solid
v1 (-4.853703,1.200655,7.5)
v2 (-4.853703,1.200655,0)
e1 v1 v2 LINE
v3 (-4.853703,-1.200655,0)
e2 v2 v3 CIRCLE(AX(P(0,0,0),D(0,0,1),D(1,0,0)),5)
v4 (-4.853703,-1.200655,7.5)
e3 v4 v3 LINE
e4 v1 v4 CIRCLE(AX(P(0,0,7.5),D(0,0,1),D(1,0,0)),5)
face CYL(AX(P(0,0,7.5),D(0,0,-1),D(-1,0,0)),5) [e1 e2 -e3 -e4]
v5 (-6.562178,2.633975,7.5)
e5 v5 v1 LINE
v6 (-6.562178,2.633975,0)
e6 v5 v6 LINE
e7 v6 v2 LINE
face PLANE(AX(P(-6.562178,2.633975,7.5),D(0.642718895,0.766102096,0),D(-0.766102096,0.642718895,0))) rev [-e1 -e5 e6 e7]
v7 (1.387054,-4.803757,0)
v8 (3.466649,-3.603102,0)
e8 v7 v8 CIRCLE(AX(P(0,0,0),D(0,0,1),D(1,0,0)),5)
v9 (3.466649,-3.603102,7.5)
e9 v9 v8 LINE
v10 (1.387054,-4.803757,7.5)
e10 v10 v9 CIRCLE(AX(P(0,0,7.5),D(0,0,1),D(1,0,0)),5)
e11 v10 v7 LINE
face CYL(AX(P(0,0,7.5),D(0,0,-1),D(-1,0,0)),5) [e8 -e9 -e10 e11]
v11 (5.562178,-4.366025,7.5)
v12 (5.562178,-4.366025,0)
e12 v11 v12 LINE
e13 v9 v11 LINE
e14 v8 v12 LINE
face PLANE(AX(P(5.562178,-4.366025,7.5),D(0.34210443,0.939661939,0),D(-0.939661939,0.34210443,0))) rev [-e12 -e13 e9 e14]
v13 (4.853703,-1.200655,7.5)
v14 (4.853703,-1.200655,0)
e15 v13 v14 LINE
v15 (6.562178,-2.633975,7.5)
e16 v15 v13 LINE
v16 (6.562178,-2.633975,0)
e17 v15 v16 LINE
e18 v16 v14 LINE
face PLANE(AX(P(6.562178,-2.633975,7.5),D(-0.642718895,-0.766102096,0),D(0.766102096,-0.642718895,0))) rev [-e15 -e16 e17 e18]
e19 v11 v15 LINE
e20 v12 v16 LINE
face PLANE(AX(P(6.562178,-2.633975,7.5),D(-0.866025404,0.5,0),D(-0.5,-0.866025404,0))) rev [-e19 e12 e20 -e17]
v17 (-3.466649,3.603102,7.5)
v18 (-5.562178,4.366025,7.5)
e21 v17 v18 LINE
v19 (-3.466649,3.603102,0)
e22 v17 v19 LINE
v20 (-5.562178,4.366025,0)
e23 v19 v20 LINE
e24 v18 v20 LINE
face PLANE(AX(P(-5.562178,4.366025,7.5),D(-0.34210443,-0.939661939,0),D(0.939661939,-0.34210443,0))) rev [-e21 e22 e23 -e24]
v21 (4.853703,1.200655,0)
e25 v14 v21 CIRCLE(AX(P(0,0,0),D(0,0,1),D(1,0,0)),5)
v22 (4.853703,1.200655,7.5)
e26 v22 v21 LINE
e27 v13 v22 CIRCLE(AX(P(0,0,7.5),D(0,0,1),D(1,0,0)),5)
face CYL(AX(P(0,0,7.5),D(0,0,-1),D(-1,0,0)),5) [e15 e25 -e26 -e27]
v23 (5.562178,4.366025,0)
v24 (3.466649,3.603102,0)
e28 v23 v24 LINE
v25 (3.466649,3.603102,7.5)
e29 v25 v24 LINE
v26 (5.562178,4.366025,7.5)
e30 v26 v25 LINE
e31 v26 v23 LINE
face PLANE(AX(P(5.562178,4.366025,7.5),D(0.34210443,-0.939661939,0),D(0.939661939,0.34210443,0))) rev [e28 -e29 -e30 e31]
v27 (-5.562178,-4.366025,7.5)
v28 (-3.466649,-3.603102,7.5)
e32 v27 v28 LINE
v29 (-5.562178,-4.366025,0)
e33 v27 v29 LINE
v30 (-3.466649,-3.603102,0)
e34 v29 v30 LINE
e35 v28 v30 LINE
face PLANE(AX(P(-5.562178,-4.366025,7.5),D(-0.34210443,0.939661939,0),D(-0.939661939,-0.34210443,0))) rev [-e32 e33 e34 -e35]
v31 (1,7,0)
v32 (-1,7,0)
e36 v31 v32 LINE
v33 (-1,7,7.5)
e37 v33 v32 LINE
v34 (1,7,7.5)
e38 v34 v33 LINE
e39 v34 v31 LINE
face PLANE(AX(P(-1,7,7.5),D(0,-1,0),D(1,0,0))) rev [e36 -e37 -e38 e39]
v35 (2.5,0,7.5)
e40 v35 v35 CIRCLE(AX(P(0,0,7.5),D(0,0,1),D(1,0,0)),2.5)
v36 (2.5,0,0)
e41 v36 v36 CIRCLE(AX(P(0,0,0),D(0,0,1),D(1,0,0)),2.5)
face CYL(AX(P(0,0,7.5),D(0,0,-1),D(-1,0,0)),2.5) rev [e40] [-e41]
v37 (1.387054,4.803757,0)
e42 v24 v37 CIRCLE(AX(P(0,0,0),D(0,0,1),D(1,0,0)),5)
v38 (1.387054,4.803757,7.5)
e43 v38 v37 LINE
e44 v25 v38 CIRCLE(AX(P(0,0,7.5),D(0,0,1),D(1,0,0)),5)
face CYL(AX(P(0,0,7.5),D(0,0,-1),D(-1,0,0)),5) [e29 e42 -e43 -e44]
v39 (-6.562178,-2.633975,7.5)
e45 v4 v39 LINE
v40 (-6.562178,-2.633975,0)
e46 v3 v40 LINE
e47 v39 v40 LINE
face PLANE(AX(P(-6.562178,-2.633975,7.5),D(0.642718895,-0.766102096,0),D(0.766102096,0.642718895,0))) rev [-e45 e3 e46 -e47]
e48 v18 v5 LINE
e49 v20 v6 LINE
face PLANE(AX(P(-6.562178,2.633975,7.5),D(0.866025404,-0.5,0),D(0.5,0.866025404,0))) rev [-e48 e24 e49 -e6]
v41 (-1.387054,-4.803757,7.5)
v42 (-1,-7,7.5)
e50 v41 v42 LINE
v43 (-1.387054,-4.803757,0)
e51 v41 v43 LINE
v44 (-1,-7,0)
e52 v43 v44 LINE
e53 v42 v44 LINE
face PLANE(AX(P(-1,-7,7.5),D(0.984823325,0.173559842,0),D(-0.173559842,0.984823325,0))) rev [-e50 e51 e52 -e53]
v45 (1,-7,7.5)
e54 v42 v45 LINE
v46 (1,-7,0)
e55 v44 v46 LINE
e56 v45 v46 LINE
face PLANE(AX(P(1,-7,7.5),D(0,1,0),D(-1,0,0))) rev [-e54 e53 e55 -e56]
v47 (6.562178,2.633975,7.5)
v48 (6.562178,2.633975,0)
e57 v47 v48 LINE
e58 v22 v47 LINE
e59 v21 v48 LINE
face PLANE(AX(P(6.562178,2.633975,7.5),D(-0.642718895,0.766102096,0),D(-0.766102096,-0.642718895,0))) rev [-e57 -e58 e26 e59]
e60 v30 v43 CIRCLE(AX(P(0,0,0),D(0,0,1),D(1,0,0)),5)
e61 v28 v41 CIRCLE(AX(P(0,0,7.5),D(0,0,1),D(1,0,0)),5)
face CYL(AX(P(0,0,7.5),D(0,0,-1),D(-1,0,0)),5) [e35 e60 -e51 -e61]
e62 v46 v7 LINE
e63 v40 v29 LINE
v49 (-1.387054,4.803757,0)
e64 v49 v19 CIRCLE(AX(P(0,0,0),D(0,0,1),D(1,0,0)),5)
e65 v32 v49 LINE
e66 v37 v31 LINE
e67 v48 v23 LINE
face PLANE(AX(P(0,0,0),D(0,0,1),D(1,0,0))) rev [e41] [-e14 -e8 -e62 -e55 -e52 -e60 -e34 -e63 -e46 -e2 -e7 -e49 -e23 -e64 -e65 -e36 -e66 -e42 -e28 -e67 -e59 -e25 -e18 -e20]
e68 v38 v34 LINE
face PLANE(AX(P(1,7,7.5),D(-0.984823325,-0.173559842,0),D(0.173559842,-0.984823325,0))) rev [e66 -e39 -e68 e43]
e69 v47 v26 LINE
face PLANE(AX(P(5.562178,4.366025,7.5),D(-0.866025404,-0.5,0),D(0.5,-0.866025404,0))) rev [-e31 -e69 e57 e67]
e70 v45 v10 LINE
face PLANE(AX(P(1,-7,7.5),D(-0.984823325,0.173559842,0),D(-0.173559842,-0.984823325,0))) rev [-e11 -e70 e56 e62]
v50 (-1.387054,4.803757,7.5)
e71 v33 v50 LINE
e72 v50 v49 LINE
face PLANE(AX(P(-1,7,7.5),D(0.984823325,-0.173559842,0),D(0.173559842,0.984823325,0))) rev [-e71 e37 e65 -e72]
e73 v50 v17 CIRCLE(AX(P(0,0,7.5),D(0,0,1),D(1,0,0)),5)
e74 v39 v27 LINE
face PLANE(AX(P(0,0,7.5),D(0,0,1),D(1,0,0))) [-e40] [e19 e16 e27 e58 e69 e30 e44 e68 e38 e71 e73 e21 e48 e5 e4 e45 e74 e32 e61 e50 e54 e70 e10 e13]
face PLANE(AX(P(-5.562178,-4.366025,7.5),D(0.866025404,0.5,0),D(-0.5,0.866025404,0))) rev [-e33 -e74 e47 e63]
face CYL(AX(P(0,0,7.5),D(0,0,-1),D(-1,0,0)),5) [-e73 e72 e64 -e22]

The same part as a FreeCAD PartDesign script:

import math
import FreeCAD as App
import Part
import Sketcher
from FreeCAD import Vector
Q = App.Units.Quantity

doc = App.newDocument("Part")
body = doc.addObject("PartDesign::Body", "Body")

# Sketch on XY plane
sketch1 = body.newObject("Sketcher::SketchObject", "Sketch")
sketch1.AttachmentSupport = (doc.getObject("XY_Plane"), [""])
sketch1.MapMode = "FlatFace"
sketch1.addGeometry([
    Part.LineSegment(Vector(1, 7, 0), Vector(-1, 7, 0)),  # 0
    Part.LineSegment(Vector(-1, 7, 0), Vector(-1.4, 4.8, 0)),  # 1
    Part.ArcOfCircle(Part.Circle(Vector(0, 0, 0), Vector(0, 0, 1), 5), math.radians(106), math.radians(134)),  # 2
    Part.LineSegment(Vector(-3.5, 3.6, 0), Vector(-5.6, 4.4, 0)),  # 3
    Part.LineSegment(Vector(-5.6, 4.4, 0), Vector(-6.6, 2.6, 0)),  # 4
    Part.LineSegment(Vector(-6.6, 2.6, 0), Vector(-4.9, 1.2, 0)),  # 5
    Part.ArcOfCircle(Part.Circle(Vector(0, 0, 0), Vector(0, 0, 1), 5), math.radians(166), math.radians(194)),  # 6
    Part.LineSegment(Vector(-4.9, -1.2, 0), Vector(-6.6, -2.6, 0)),  # 7
    Part.LineSegment(Vector(-6.6, -2.6, 0), Vector(-5.6, -4.4, 0)),  # 8
    Part.LineSegment(Vector(-5.6, -4.4, 0), Vector(-3.5, -3.6, 0)),  # 9
    Part.ArcOfCircle(Part.Circle(Vector(0, 0, 0), Vector(0, 0, 1), 5), math.radians(-134), math.radians(-106)),  # 10
    Part.LineSegment(Vector(-1.4, -4.8, 0), Vector(-1, -7, 0)),  # 11
    Part.LineSegment(Vector(-1, -7, 0), Vector(1, -7, 0)),  # 12
    Part.LineSegment(Vector(1, -7, 0), Vector(1.4, -4.8, 0)),  # 13
    Part.ArcOfCircle(Part.Circle(Vector(0, 0, 0), Vector(0, 0, 1), 5), math.radians(-74), math.radians(-46)),  # 14
    Part.LineSegment(Vector(3.5, -3.6, 0), Vector(5.6, -4.4, 0)),  # 15
    Part.LineSegment(Vector(5.6, -4.4, 0), Vector(6.6, -2.6, 0)),  # 16
    Part.LineSegment(Vector(6.6, -2.6, 0), Vector(4.9, -1.2, 0)),  # 17
    Part.ArcOfCircle(Part.Circle(Vector(0, 0, 0), Vector(0, 0, 1), 5), math.radians(-14), math.radians(14)),  # 18
    Part.LineSegment(Vector(4.9, 1.2, 0), Vector(6.6, 2.6, 0)),  # 19
    Part.LineSegment(Vector(6.6, 2.6, 0), Vector(5.6, 4.4, 0)),  # 20
    Part.LineSegment(Vector(5.6, 4.4, 0), Vector(3.5, 3.6, 0)),  # 21
    Part.ArcOfCircle(Part.Circle(Vector(0, 0, 0), Vector(0, 0, 1), 5), math.radians(46), math.radians(74)),  # 22
    Part.LineSegment(Vector(1.4, 4.8, 0), Vector(1, 7, 0)),  # 23
    Part.Circle(Vector(0, 0, 0), Vector(0, 0, 1), 2.5),  # 24
], False)
sketch1.addConstraint([
    Sketcher.Constraint("Coincident", 0, 2, 1, 1),
    Sketcher.Constraint("Coincident", 1, 2, 2, 1),
    Sketcher.Constraint("Coincident", 2, 2, 3, 1),
    Sketcher.Constraint("Coincident", 3, 2, 4, 1),
    Sketcher.Constraint("Coincident", 4, 2, 5, 1),
    Sketcher.Constraint("Coincident", 5, 2, 6, 1),
    Sketcher.Constraint("Coincident", 6, 2, 7, 1),
    Sketcher.Constraint("Coincident", 7, 2, 8, 1),
    Sketcher.Constraint("Coincident", 8, 2, 9, 1),
    Sketcher.Constraint("Coincident", 9, 2, 10, 1),
    Sketcher.Constraint("Coincident", 10, 2, 11, 1),
    Sketcher.Constraint("Coincident", 11, 2, 12, 1),
    Sketcher.Constraint("Coincident", 12, 2, 13, 1),
    Sketcher.Constraint("Coincident", 13, 2, 14, 1),
    Sketcher.Constraint("Coincident", 14, 2, 15, 1),
    Sketcher.Constraint("Coincident", 15, 2, 16, 1),
    Sketcher.Constraint("Coincident", 16, 2, 17, 1),
    Sketcher.Constraint("Coincident", 17, 2, 18, 1),
    Sketcher.Constraint("Coincident", 18, 2, 19, 1),
    Sketcher.Constraint("Coincident", 19, 2, 20, 1),
    Sketcher.Constraint("Coincident", 20, 2, 21, 1),
    Sketcher.Constraint("Coincident", 21, 2, 22, 1),
    Sketcher.Constraint("Coincident", 22, 2, 23, 1),
    Sketcher.Constraint("Coincident", 23, 2, 0, 1),
    Sketcher.Constraint("Horizontal", 0),
    Sketcher.Constraint("Horizontal", 12),
    Sketcher.Constraint("Coincident", 2, 3, -1, 1),
    Sketcher.Constraint("Coincident", 6, 3, -1, 1),
    Sketcher.Constraint("Coincident", 10, 3, -1, 1),
    Sketcher.Constraint("Coincident", 14, 3, -1, 1),
    Sketcher.Constraint("Coincident", 18, 3, -1, 1),
    Sketcher.Constraint("Coincident", 22, 3, -1, 1),
    Sketcher.Constraint("Coincident", 24, 3, -1, 1),
    Sketcher.Constraint("Equal", 2, 6),
    Sketcher.Constraint("Equal", 6, 10),
    Sketcher.Constraint("Equal", 10, 14),
    Sketcher.Constraint("Equal", 14, 18),
    Sketcher.Constraint("Equal", 18, 22),
    Sketcher.Constraint("Symmetric", 0, 2, 12, 2, -1, 1),
    Sketcher.Constraint("Symmetric", 3, 2, 15, 2, -1, 1),
    Sketcher.Constraint("Symmetric", 4, 2, 16, 2, -1, 1),
    Sketcher.Constraint("Symmetric", 7, 2, 19, 2, -1, 1),
    Sketcher.Constraint("Symmetric", 8, 2, 20, 2, -1, 1),
    Sketcher.Constraint("Symmetric", 8, 2, 15, 2, -2),
    Sketcher.Constraint("Symmetric", 7, 2, 16, 2, -2),
    Sketcher.Constraint("Parallel", 1, 13),
    Sketcher.Constraint("Parallel", 3, 15),
    Sketcher.Constraint("Parallel", 5, 17),
    Sketcher.Constraint("Parallel", 7, 19),
    Sketcher.Constraint("Parallel", 9, 21),
    Sketcher.Constraint("Parallel", 11, 23),
    Sketcher.Constraint("Horizontal", 10, 2, 13, 2),
    Sketcher.Constraint("Horizontal", 9, 2, 14, 2),
    Sketcher.Constraint("Horizontal", 6, 2, 17, 2),
    Sketcher.Constraint("Horizontal", 1, 2, 22, 2),
    Sketcher.Constraint("Vertical", 0, 2, 11, 2),
    Sketcher.Constraint("Equal", 1, 3),
    Sketcher.Constraint("Equal", 3, 5),
    Sketcher.Constraint("Diameter", 24, Q("5 mm")),
    Sketcher.Constraint("Radius", 2, Q("5 mm")),
    Sketcher.Constraint("DistanceX", 0, 2, 0, 1, Q("2 mm")),
    Sketcher.Constraint("Angle", 4, Q("-120 deg")),
    Sketcher.Constraint("Distance", 4, Q("2 mm")),
    Sketcher.Constraint("DistanceY", -1, 1, 0, 2, Q("7 mm")),
    Sketcher.Constraint("Distance", 1, Q("2.230088 mm")),
    Sketcher.Constraint("DistanceX", 2, 2, -1, 1, Q("3.466649 mm")),
    Sketcher.Constraint("DistanceX", 3, 2, 2, 2, Q("2.095529 mm")),
])
pad1 = body.newObject("PartDesign::Pad", "Pad")
pad1.Profile = sketch1
pad1.Length = 7.5

doc.recompute()
